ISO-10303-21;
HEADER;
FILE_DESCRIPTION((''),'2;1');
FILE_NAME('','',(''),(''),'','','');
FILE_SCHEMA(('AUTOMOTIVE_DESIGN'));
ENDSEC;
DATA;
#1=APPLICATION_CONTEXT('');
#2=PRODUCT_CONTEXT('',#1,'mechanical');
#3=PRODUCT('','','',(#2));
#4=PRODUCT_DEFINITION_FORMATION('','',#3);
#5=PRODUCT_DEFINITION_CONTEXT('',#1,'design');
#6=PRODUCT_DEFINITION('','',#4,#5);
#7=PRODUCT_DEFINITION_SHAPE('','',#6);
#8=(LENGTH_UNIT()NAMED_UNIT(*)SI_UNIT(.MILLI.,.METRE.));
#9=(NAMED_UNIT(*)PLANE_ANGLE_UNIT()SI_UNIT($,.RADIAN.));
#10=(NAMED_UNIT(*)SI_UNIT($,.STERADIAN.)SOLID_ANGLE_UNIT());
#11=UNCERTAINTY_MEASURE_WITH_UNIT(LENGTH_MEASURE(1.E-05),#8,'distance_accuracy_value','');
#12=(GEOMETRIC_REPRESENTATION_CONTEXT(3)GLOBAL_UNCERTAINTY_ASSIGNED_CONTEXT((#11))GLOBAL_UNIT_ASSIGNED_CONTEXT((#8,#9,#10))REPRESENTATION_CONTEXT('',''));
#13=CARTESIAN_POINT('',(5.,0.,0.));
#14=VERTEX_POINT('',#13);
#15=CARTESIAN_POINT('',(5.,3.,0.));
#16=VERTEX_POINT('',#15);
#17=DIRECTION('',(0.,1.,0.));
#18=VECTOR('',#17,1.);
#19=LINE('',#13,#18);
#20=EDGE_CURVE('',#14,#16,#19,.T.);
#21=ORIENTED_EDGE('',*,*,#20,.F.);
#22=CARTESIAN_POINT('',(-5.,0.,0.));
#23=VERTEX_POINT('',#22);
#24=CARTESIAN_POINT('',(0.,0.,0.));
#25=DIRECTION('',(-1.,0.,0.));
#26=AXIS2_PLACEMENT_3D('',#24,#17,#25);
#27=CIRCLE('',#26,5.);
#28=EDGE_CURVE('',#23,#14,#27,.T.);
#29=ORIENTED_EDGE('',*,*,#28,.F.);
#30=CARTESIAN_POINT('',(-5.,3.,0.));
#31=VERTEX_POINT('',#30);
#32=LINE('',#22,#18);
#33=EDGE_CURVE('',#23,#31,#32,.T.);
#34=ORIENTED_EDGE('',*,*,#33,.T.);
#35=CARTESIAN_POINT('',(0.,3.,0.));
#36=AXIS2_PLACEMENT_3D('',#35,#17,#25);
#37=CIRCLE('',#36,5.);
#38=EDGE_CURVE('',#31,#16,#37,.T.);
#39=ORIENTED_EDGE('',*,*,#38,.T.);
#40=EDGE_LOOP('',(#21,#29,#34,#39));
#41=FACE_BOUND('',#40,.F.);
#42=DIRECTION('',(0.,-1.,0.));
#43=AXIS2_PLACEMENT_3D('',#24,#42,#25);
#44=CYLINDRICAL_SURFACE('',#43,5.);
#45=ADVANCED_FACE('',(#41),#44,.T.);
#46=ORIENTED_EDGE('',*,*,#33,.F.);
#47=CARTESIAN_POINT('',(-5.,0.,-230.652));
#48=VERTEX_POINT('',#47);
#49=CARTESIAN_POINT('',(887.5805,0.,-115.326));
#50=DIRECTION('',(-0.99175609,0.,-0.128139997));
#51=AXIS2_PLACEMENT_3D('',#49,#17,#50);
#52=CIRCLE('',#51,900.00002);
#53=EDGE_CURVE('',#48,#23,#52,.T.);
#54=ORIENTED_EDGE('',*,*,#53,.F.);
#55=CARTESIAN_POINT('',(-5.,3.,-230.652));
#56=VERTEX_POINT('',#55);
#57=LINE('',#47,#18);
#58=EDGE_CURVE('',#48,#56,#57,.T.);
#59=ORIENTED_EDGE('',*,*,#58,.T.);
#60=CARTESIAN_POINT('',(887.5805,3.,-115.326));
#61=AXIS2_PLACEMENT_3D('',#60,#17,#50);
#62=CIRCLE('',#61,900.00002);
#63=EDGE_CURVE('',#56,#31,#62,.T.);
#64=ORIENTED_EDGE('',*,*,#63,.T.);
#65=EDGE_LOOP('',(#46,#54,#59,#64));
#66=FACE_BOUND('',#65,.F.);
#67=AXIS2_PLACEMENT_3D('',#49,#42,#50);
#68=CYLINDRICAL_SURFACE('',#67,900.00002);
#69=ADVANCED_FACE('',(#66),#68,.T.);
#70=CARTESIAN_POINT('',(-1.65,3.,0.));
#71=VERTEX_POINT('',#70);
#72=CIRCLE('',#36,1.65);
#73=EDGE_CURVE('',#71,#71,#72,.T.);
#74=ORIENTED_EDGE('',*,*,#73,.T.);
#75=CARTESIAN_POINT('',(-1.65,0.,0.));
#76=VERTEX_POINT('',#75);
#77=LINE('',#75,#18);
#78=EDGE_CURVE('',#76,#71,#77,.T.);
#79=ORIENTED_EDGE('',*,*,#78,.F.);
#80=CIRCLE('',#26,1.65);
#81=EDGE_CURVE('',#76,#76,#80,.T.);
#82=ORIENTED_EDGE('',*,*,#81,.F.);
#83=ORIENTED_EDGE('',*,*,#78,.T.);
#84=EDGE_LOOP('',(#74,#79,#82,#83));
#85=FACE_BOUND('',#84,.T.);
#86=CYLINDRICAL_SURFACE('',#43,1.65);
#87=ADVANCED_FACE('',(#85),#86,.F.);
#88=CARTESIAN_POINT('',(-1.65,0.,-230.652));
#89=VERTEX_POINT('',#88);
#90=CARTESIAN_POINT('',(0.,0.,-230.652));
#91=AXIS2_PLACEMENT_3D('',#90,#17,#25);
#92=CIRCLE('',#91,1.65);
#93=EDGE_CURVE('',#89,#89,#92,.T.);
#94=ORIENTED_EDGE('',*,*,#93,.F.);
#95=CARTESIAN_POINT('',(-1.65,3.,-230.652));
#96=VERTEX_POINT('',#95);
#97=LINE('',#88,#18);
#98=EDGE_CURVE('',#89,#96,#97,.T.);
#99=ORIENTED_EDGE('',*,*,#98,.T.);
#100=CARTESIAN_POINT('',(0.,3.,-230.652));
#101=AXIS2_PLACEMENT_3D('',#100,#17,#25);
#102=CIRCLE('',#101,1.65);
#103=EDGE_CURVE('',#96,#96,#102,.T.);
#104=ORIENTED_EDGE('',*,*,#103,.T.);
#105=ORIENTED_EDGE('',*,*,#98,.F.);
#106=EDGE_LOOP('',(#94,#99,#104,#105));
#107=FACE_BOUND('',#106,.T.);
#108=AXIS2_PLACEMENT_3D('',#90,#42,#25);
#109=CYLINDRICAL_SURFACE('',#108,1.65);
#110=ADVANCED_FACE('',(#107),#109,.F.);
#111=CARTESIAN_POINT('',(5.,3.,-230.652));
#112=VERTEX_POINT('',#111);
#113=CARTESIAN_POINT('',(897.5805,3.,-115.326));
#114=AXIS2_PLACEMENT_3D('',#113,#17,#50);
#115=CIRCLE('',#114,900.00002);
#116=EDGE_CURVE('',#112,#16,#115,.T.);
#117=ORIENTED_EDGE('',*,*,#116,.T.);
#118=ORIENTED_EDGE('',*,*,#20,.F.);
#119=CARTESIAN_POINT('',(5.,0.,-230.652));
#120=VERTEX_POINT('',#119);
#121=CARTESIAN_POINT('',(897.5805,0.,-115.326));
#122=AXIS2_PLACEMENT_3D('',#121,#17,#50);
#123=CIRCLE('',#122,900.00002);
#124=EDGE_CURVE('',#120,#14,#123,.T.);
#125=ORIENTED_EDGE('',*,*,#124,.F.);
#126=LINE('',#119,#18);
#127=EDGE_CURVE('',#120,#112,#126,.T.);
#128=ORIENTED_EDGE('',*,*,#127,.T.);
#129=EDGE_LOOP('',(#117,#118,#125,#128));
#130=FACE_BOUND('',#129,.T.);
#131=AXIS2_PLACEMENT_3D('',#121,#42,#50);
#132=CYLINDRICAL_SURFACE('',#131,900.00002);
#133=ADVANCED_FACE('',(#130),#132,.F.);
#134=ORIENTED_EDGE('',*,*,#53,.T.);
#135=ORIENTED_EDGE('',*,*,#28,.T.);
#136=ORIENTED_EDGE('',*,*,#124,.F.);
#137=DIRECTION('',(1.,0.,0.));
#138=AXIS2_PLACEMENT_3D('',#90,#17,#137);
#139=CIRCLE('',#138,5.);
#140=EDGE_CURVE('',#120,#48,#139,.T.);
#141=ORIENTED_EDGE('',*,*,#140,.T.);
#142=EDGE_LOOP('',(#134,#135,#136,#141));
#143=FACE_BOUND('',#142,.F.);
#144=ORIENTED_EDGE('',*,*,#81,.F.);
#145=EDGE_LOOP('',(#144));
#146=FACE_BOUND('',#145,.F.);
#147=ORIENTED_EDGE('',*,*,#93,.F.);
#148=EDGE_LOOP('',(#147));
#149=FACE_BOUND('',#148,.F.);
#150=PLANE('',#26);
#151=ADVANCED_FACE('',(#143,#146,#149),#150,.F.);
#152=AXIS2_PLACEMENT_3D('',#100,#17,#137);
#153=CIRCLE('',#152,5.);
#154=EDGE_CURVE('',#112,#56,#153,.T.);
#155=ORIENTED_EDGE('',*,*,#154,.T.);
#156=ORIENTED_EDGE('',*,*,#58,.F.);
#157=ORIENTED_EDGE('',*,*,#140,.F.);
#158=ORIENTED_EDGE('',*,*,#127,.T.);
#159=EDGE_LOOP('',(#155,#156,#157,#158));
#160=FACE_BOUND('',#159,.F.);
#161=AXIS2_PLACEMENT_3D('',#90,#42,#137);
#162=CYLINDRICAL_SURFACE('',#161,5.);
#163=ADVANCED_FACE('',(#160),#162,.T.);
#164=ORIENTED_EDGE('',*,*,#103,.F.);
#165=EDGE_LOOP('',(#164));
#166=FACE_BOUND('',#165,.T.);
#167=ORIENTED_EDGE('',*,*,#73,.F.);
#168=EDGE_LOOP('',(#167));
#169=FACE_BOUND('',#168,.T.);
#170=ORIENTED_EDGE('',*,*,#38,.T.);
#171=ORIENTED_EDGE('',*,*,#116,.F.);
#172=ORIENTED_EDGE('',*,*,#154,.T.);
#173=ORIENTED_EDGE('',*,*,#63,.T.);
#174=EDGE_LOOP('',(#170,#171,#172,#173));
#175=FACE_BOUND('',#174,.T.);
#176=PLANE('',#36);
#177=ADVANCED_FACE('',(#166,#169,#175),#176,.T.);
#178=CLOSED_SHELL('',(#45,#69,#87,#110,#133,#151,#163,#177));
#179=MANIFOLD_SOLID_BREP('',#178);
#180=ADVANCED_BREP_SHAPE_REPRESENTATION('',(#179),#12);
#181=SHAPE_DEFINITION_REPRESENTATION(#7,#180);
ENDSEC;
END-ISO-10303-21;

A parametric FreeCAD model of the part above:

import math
import FreeCAD as App
import Part
import Sketcher

doc = App.newDocument("Part")
body = doc.addObject("PartDesign::Body", "Body")

sketch1 = body.newObject("Sketcher::SketchObject", "Sketch")
sketch1.AttachmentSupport = (doc.getObject("XZ_Plane"), [""])
sketch1.MapMode = "FlatFace"
sketch1.addGeometry([
    Part.ArcOfCircle(Part.Circle(App.Vector(887.5805, -115.326, 0), App.Vector(0, 0, 1), 900.00002), math.radians(172.637877), math.radians(187.362123)),
    Part.ArcOfCircle(Part.Circle(App.Vector(0, 0, 0), App.Vector(0, 0, 1), 5), math.radians(0), math.radians(180)),
    Part.ArcOfCircle(Part.Circle(App.Vector(897.5805, -115.326, 0), App.Vector(0, 0, 1), 900.00002), math.radians(172.637877), math.radians(187.362123)),
    Part.ArcOfCircle(Part.Circle(App.Vector(0, -230.652, 0), App.Vector(0, 0, 1), 5), math.radians(180), math.radians(360)),
    Part.Circle(App.Vector(0, 0, 0), App.Vector(0, 0, 1), 1.65),
    Part.Circle(App.Vector(0, -230.652, 0), App.Vector(0, 0, 1), 1.65),
], False)
sketch1.addConstraint([
    Sketcher.Constraint("Coincident", 0, 1, 1, 2),
    Sketcher.Constraint("Coincident", 1, 1, 2, 1),
    Sketcher.Constraint("Coincident", 2, 2, 3, 2),
    Sketcher.Constraint("Coincident", 3, 1, 0, 2),
    Sketcher.Constraint("Coincident", 1, 3, -1, 1),
    Sketcher.Constraint("Coincident", 4, 3, -1, 1),
    Sketcher.Constraint("Coincident", 5, 3, 3, 3),
    Sketcher.Constraint("Equal", 0, 2),
    Sketcher.Constraint("Equal", 1, 3),
    Sketcher.Constraint("Equal", 4, 5),
    Sketcher.Constraint("Symmetric", 2, 2, 3, 1, -2),
    Sketcher.Constraint("PointOnObject", 0, 1, -1),
    Sketcher.Constraint("PointOnObject", 1, 1, -1),
    Sketcher.Constraint("Radius", 0, 900.0),
    Sketcher.Constraint("Radius", 1, 5.0),
    Sketcher.Constraint("Diameter", 4, 3.3),
    Sketcher.Constraint("DistanceY", 3, 3, -1, 1, 230.652),
    Sketcher.Constraint("DistanceY", 3, 1, -1, 1, 230.652),
])
pad1 = body.newObject("PartDesign::Pad", "Pad")
pad1.Profile = sketch1
pad1.Length = 3
pad1.Reversed = True

doc.recompute()
